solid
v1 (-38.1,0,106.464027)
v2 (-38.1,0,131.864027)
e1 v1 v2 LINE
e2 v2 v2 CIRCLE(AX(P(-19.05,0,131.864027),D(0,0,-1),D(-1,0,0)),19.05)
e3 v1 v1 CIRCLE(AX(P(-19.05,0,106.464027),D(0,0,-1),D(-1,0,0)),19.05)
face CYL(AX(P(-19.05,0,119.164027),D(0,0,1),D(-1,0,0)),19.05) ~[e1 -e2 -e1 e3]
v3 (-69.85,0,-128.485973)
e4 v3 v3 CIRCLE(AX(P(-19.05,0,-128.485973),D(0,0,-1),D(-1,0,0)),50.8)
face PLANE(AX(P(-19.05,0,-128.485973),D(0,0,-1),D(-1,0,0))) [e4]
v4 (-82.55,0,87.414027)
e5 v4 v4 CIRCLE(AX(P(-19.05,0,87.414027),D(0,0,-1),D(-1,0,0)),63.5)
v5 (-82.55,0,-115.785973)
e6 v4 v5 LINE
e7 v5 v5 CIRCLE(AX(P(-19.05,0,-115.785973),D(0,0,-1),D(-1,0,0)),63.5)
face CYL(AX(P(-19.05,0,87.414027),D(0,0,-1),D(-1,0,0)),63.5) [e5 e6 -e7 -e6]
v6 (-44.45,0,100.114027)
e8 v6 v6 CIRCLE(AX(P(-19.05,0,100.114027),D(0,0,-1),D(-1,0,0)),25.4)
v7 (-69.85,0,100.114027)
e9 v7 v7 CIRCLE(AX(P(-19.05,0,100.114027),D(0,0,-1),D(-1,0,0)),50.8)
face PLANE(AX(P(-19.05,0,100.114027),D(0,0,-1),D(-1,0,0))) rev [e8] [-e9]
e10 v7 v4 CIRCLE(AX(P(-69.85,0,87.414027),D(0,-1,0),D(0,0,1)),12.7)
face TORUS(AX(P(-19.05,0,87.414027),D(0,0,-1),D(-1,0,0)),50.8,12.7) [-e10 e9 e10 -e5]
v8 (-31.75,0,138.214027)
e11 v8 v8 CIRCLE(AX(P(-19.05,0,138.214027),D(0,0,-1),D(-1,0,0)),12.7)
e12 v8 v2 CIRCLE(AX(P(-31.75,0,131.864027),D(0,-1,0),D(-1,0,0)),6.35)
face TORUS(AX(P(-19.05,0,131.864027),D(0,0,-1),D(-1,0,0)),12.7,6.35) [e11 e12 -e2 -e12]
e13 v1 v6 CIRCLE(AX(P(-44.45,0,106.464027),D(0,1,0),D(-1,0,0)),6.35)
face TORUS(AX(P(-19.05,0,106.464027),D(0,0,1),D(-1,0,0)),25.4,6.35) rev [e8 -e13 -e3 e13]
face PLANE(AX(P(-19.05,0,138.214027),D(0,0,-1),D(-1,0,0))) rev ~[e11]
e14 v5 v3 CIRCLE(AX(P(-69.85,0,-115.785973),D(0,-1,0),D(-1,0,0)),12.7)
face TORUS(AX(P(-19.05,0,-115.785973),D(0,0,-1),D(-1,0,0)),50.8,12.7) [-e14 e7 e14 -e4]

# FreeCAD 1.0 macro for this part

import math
import FreeCAD as App
import Part
import Sketcher

V = App.Vector
Q = App.Units.Quantity


def edges_at(feature, points):
    """Names of the edges that pass closest to the given points."""
    edges = feature.Shape.Edges
    near = lambda p: min(range(len(edges)), key=lambda i: edges[i].distToShape(Part.Vertex(*p))[0])
    return sorted({f"Edge{near(p) + 1}" for p in points})

doc = App.newDocument("Part")
params = doc.addObject("Spreadsheet::Sheet", "Params")
for row, (alias, value) in enumerate([
    ("sketch1_radius", "0.5 in"),
    ("sketch1_width", "2 in"),
    ("sketch1_height", "8 in"),
    ("sketch1_height2", "10.5 in"),
    ("sketch1_width2", "0.75 in"),
    ("revolution_angle", "360 deg"),
    ("fillet_radius", "0.25 in"),
], start=1):
    params.set(f"A{row}", alias)
    params.set(f"B{row}", "=" + value)
    params.setAlias(f"B{row}", alias)

body = doc.addObject("PartDesign::Body", "Body")

sketch1 = doc.addObject("Sketcher::SketchObject", "Sketch")
body.addObject(sketch1)
sketch1.AttachmentSupport = (doc.XZ_Plane, [""])
sketch1.MapMode = "FlatFace"
sketch1.addGeometry(Part.ArcOfCircle(Part.Circle(V(-70, 87, 0), V(0, 0, 1), 13), math.radians(90), math.radians(180)), False)
sketch1.addGeometry(Part.LineSegment(V(-83, 87, 0), V(-83, -116, 0)), False)
sketch1.addGeometry(Part.ArcOfCircle(Part.Circle(V(-70, -116, 0), V(0, 0, 1), 13), math.radians(180), math.radians(270)), False)
sketch1.addGeometry(Part.LineSegment(V(-70, -128, 0), V(-19, -128, 0)), False)
sketch1.addGeometry(Part.LineSegment(V(-19, -128, 0), V(-19, 138, 0)), False)
sketch1.addGeometry(Part.LineSegment(V(-19, 138, 0), V(-38, 138, 0)), False)
sketch1.addGeometry(Part.LineSegment(V(-38, 138, 0), V(-38, 100, 0)), False)
sketch1.addGeometry(Part.LineSegment(V(-38, 100, 0), V(-70, 100, 0)), False)
sketch1.addGeometry(Part.LineSegment(V(-19, 138, 0), V(-19, -128, 0)), True)
sketch1.addConstraint(Sketcher.Constraint("Tangent", 0, 2, 1, 1))
sketch1.addConstraint(Sketcher.Constraint("Tangent", 1, 2, 2, 1))
sketch1.addConstraint(Sketcher.Constraint("Tangent", 2, 2, 3, 1))
sketch1.addConstraint(Sketcher.Constraint("Coincident", 3, 2, 4, 1))
sketch1.addConstraint(Sketcher.Constraint("Coincident", 4, 2, 5, 1))
sketch1.addConstraint(Sketcher.Constraint("Coincident", 5, 2, 6, 1))
sketch1.addConstraint(Sketcher.Constraint("Coincident", 6, 2, 7, 1))
sketch1.addConstraint(Sketcher.Constraint("Tangent", 7, 2, 0, 1))
sketch1.addConstraint(Sketcher.Constraint("Vertical", 1))
sketch1.addConstraint(Sketcher.Constraint("Horizontal", 3))
sketch1.addConstraint(Sketcher.Constraint("Vertical", 4))
sketch1.addConstraint(Sketcher.Constraint("Horizontal", 5))
sketch1.addConstraint(Sketcher.Constraint("Vertical", 6))
sketch1.addConstraint(Sketcher.Constraint("Horizontal", 7))
sketch1.addConstraint(Sketcher.Constraint("Vertical", 8))
sketch1.addConstraint(Sketcher.Constraint("Coincident", 8, 1, 4, 2))
sketch1.addConstraint(Sketcher.Constraint("Equal", 0, 2))
sketch1.addConstraint(Sketcher.Constraint("Horizontal", 2, 2, 8, 2))
sketch1.addConstraint(Sketcher.Constraint("Radius", 0, Q("0.5 in")))
sketch1.addConstraint(Sketcher.Constraint("DistanceX", 3, 1, 3, 2, Q("2 in")))
sketch1.addConstraint(Sketcher.Constraint("DistanceY", 1, 2, 1, 1, Q("8 in")))
sketch1.addConstraint(Sketcher.Constraint("DistanceY", 4, 1, 4, 2, Q("10.5 in")))
sketch1.addConstraint(Sketcher.Constraint("DistanceX", 5, 2, 5, 1, Q("0.75 in")))
sketch1.addConstraint(Sketcher.Constraint("DistanceX", 5, 2, -1, 1, Q("1.5 in")))
sketch1.addConstraint(Sketcher.Constraint("DistanceY", -1, 1, 0, 3, 87.414027))
sketch1.setExpression("Constraints[18]", "Params.sketch1_radius")
sketch1.setExpression("Constraints[19]", "Params.sketch1_width")
sketch1.setExpression("Constraints[20]", "Params.sketch1_height")
sketch1.setExpression("Constraints[21]", "Params.sketch1_height2")
sketch1.setExpression("Constraints[22]", "Params.sketch1_width2")
revolution = doc.addObject("PartDesign::Revolution", "Revolution")
body.addObject(revolution)
revolution.Profile = sketch1
revolution.ReferenceAxis = (sketch1, ["Axis0"])
revolution.setExpression("Angle", "Params.revolution_angle")
doc.recompute()

fillet = doc.addObject("PartDesign::Fillet", "Fillet")
body.addObject(fillet)
fillet.Base = (revolution, edges_at(revolution, [(0, 0, 100.114), (0, 0, 138.214)]))
fillet.setExpression("Radius", "Params.fillet_radius")

doc.recompute()
